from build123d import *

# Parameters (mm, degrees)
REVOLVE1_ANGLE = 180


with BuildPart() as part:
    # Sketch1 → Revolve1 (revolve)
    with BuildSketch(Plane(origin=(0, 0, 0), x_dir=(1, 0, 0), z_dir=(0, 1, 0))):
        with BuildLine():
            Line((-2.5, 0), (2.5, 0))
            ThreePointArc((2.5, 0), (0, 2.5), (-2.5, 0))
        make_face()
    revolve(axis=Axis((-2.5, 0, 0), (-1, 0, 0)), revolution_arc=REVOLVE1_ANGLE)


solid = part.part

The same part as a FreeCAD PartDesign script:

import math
import FreeCAD as App
import Part
import Sketcher

doc = App.newDocument("Part")
body = doc.addObject("PartDesign::Body", "Body")

# Sketch on XZ plane
sketch1 = body.newObject("Sketcher::SketchObject", "Sketch")
sketch1.AttachmentSupport = (doc.getObject("XZ_Plane"), [""])
sketch1.MapMode = "FlatFace"
sketch1.addGeometry(Part.LineSegment(App.Vector(-2.5, 0, 0), App.Vector(2.5, 0, 0)), False)
sketch1.addGeometry(Part.ArcOfCircle(Part.Circle(App.Vector(0, 0, 0), App.Vector(0, 0, 1), 2.5), math.radians(180), math.radians(360)), False)
sketch1.addConstraint(Sketcher.Constraint("Coincident", 0, 1, 1, 1))
sketch1.addConstraint(Sketcher.Constraint("Coincident", 1, 2, 0, 2))
sketch1.addConstraint(Sketcher.Constraint("Horizontal", 0))
sketch1.addConstraint(Sketcher.Constraint("Coincident", 1, 3, -1, 1))
sketch1.addConstraint(Sketcher.Constraint("PointOnObject", 0, 1, -1))
sketch1.addConstraint(Sketcher.Constraint("Radius", 1, 2.5))
revolution = body.newObject("PartDesign::Revolution", "Revolution")
revolution.Profile = sketch1
revolution.ReferenceAxis = (sketch1, ["H_Axis"])
revolution.Angle = 180
revolution.Reversed = True

doc.recompute()
